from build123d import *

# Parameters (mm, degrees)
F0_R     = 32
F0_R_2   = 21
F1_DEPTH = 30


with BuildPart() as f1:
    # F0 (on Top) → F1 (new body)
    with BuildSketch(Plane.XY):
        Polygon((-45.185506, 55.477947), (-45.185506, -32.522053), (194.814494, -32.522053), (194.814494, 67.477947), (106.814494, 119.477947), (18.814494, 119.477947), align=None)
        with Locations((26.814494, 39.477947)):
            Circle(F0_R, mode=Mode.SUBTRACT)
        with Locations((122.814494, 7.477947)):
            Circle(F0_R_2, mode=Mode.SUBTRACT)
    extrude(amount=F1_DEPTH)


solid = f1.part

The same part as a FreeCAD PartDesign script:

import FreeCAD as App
import Part
import Sketcher
from FreeCAD import Vector
Q = App.Units.Quantity


def add_polygon(sketch, points):
    """Adds a closed chain of lines whose ends are joined by coincident constraints."""
    first, n = sketch.GeometryCount, len(points)
    for a, b in zip(points, points[1:] + points[:1]):
        sketch.addGeometry(Part.LineSegment(App.Vector(*a, 0), App.Vector(*b, 0)), False)
    for i in range(n):
        sketch.addConstraint(Sketcher.Constraint("Coincident", first + i, 2, first + (i + 1) % n, 1))

doc = App.newDocument("Part")
body = doc.addObject("PartDesign::Body", "Body")

sketch1 = doc.addObject("Sketcher::SketchObject", "Sketch")
body.addObject(sketch1)
sketch1.AttachmentSupport = (doc.XY_Plane, [""])
sketch1.MapMode = "FlatFace"
add_polygon(sketch1, [(-45, 55), (-45, -33), (195, -33), (195, 67), (107, 119), (19, 119)])
sketch1.addGeometry(Part.Circle(Vector(123, 7, 0), Vector(0, 0, 1), 21), False)
sketch1.addGeometry(Part.Circle(Vector(27, 39, 0), Vector(0, 0, 1), 32), False)
sketch1.addConstraint([
    Sketcher.Constraint("Vertical", 0),
    Sketcher.Constraint("Horizontal", 1),
    Sketcher.Constraint("Vertical", 2),
    Sketcher.Constraint("Horizontal", 4),
    Sketcher.Constraint("Equal", 4, 0),
    Sketcher.Constraint("Diameter", 6, 42.0),
    Sketcher.Constraint("Diameter", 7, 64.0),
    Sketcher.Constraint("DistanceX", 1, 1, 1, 2, 240.0),
    Sketcher.Constraint("DistanceX", 4, 2, 4, 1, 88.0),
    Sketcher.Constraint("DistanceY", 2, 1, 2, 2, 100.0),
    Sketcher.Constraint("Angle", 5, Q("-135 deg")),
    Sketcher.Constraint("DistanceX", 7, 3, 6, 3, 96.0),
    Sketcher.Constraint("DistanceY", 6, 3, 7, 3, 32.0),
    Sketcher.Constraint("DistanceX", 0, 2, 7, 3, 72.0),
    Sketcher.Constraint("DistanceY", 0, 2, 7, 3, 72.0),
    Sketcher.Constraint("DistanceX", 3, 2, 2, 2, 88.0),
    Sketcher.Constraint("DistanceX", -1, 1, 6, 3, 122.814494),
    Sketcher.Constraint("DistanceY", -1, 1, 6, 3, 7.477947),
])
pad1 = doc.addObject("PartDesign::Pad", "Pad")
body.addObject(pad1)
pad1.Profile = sketch1
pad1.Length = 30

doc.recompute()
